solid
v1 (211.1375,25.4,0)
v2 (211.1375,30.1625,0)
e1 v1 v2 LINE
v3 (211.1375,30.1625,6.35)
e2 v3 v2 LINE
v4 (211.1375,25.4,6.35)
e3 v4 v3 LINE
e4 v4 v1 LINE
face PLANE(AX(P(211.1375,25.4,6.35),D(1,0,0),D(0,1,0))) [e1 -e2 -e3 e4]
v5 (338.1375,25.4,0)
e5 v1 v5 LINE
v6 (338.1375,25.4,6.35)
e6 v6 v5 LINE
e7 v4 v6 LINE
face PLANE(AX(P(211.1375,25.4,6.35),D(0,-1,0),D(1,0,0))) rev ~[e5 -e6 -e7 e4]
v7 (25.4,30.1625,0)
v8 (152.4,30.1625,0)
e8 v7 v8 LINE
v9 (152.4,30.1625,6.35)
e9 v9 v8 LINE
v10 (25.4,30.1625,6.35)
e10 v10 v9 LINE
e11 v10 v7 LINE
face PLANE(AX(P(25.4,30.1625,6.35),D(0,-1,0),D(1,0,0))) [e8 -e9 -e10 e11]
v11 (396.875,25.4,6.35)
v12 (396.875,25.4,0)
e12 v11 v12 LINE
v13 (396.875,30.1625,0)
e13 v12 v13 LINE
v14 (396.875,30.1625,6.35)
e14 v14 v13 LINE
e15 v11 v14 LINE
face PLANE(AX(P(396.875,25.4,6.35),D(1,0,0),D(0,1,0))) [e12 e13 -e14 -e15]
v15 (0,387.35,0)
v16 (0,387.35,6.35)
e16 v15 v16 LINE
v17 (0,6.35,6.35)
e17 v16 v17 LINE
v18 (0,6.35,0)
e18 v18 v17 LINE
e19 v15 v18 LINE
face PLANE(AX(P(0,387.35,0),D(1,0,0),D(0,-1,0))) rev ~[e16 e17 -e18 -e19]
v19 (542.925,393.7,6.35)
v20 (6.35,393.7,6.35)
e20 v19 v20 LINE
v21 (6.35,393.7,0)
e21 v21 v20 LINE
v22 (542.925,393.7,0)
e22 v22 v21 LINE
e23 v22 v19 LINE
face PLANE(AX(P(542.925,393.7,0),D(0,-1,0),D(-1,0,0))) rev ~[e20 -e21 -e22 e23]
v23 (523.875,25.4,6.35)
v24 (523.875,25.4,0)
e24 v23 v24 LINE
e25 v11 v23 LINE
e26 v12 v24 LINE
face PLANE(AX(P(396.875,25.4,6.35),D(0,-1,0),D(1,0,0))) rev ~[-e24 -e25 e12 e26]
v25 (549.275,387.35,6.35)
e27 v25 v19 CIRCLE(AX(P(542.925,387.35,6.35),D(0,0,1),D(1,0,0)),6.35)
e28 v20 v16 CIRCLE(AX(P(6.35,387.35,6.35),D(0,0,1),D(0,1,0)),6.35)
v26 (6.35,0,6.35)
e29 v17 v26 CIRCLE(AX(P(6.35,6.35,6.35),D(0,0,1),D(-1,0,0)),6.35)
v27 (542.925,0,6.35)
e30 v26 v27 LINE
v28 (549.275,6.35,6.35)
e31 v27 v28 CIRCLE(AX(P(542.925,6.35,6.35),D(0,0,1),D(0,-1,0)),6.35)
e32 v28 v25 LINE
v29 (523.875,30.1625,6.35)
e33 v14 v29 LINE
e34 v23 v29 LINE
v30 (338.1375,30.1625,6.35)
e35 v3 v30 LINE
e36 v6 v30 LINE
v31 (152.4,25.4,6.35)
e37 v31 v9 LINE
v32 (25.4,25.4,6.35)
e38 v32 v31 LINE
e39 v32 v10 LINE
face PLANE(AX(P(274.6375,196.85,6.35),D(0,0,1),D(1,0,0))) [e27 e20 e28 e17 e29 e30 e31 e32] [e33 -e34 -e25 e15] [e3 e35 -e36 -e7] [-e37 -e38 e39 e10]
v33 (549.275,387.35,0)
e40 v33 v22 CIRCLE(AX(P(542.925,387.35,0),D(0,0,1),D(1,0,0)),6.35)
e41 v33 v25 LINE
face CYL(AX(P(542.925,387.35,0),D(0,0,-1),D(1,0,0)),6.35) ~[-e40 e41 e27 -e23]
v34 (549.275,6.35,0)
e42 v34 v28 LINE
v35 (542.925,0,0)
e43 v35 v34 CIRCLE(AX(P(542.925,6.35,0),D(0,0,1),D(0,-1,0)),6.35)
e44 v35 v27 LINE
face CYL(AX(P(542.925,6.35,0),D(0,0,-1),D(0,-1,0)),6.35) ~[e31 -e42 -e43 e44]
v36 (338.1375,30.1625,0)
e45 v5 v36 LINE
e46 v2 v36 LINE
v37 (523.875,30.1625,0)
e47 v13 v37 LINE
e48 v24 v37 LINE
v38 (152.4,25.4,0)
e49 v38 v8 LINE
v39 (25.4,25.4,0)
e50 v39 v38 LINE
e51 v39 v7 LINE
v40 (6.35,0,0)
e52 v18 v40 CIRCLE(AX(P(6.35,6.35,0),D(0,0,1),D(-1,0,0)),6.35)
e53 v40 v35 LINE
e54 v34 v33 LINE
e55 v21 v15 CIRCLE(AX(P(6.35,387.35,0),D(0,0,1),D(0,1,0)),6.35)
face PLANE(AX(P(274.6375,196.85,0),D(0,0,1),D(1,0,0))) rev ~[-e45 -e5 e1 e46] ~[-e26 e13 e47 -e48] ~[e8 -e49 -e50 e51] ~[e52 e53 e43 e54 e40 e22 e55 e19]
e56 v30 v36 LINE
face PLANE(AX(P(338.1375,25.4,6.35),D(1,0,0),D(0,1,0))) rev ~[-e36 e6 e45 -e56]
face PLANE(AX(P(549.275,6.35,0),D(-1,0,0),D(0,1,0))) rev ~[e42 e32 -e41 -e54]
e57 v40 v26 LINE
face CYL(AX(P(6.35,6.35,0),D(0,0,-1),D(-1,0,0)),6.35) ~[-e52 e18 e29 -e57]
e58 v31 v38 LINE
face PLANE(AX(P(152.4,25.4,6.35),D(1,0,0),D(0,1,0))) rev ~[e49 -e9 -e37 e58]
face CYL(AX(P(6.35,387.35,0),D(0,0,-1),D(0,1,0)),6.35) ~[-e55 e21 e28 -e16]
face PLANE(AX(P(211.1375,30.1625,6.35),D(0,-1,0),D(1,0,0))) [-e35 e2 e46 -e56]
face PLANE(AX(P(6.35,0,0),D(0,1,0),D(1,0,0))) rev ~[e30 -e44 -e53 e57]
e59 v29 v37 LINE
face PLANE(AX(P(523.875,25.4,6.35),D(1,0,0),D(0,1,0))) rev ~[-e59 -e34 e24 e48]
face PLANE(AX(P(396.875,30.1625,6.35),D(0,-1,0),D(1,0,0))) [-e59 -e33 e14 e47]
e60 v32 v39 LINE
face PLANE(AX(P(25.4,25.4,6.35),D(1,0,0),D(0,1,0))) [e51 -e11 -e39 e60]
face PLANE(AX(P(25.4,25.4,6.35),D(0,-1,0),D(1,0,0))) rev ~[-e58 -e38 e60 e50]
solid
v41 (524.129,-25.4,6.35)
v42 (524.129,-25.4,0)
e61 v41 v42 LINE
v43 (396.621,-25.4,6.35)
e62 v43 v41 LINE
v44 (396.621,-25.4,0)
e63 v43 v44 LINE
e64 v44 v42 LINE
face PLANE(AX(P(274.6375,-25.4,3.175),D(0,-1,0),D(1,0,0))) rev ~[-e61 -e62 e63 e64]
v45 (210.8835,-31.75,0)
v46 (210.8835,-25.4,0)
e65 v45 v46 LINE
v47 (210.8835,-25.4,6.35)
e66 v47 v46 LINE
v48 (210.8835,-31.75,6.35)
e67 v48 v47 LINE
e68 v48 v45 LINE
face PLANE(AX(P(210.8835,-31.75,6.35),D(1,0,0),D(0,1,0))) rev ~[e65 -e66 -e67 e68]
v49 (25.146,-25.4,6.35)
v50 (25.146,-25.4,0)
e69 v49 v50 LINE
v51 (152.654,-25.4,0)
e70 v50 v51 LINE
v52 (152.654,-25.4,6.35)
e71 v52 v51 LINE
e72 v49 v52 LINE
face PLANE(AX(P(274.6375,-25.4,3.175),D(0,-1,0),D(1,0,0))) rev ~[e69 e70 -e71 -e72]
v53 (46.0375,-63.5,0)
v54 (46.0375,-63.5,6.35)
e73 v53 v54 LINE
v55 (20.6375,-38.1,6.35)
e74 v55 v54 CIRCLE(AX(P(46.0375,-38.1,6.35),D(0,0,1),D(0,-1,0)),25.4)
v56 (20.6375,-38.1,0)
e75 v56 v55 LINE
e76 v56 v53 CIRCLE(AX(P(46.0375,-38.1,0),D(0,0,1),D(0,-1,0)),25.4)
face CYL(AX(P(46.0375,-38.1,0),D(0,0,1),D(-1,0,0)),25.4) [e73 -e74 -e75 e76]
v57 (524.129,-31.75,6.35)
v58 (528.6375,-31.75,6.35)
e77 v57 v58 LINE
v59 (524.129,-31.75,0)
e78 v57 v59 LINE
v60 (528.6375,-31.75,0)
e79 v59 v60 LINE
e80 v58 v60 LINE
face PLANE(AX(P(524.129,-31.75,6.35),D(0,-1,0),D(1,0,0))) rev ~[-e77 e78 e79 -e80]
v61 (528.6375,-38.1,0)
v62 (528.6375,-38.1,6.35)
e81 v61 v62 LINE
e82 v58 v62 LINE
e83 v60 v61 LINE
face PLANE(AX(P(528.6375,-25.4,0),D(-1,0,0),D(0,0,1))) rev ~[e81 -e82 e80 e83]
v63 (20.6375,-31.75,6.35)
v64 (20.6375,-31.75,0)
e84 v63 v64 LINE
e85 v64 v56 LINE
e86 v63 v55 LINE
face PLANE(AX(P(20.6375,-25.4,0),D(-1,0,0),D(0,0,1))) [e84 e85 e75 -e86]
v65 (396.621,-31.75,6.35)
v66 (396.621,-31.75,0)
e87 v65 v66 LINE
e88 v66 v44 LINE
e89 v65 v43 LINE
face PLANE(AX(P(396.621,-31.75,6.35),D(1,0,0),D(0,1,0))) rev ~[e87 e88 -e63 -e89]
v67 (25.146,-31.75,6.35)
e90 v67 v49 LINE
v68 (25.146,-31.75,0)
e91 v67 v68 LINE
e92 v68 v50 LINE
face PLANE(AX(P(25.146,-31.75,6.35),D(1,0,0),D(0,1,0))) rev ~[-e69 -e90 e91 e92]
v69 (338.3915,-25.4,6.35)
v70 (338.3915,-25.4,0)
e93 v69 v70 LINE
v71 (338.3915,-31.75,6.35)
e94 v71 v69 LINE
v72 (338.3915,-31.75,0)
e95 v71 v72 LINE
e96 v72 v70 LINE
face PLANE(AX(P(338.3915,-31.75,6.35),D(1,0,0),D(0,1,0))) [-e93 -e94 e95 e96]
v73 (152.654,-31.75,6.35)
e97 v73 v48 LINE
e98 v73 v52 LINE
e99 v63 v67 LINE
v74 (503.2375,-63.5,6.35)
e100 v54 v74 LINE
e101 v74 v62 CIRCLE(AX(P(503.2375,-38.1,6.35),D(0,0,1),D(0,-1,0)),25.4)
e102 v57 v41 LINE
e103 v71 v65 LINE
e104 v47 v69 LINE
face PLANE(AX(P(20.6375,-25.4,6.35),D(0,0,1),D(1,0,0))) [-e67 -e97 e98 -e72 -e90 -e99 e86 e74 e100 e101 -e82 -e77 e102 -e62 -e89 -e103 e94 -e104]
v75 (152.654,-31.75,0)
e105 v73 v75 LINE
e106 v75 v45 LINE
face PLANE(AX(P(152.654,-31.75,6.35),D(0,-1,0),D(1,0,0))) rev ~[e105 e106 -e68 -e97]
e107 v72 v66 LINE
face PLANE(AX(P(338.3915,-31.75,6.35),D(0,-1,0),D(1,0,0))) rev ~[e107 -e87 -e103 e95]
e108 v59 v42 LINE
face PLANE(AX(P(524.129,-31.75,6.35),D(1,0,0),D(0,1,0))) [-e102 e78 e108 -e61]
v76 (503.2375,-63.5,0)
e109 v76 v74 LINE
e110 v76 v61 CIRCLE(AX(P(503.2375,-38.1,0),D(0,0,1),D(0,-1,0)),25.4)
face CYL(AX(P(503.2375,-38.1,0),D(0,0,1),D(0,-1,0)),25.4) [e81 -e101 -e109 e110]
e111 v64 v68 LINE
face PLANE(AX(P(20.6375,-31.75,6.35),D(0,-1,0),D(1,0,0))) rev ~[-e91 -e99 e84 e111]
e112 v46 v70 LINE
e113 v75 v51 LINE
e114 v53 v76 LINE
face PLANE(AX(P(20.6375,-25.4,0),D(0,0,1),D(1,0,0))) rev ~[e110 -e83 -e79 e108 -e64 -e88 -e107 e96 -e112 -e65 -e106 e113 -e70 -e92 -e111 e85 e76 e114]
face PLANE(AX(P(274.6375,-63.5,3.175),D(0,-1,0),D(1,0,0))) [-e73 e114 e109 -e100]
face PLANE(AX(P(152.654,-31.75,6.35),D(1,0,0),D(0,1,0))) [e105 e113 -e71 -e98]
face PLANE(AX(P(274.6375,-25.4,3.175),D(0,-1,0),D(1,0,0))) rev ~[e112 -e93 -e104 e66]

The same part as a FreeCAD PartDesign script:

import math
import FreeCAD as App
import Part
import Sketcher

V = App.Vector
Q = App.Units.Quantity


def edges_at(feature, points):
    """Names of the edges that pass closest to the given points."""
    edges = feature.Shape.Edges
    near = lambda p: min(range(len(edges)), key=lambda i: edges[i].distToShape(Part.Vertex(*p))[0])
    return sorted({f"Edge{near(p) + 1}" for p in points})

doc = App.newDocument("Part")
body = doc.addObject("PartDesign::Body", "Body")

# Sketch on XY plane
sketch1 = body.newObject("Sketcher::SketchObject", "Sketch")
sketch1.AttachmentSupport = (doc.getObject("XY_Plane"), [""])
sketch1.MapMode = "FlatFace"
sketch1.addGeometry([
    Part.LineSegment(V(6, 0, 0), V(543, 0, 0)),  # 0
    Part.ArcOfCircle(Part.Circle(V(543, 6, 0), V(0, 0, 1), 6), math.radians(-90), math.radians(0)),  # 1
    Part.LineSegment(V(549, 6, 0), V(549, 387, 0)),  # 2
    Part.ArcOfCircle(Part.Circle(V(543, 387, 0), V(0, 0, 1), 6), math.radians(0), math.radians(90)),  # 3
    Part.LineSegment(V(543, 394, 0), V(6, 394, 0)),  # 4
    Part.ArcOfCircle(Part.Circle(V(6, 387, 0), V(0, 0, 1), 6), math.radians(90), math.radians(180)),  # 5
    Part.LineSegment(V(0, 387, 0), V(0, 6, 0)),  # 6
    Part.ArcOfCircle(Part.Circle(V(6, 6, 0), V(0, 0, 1), 6), math.radians(180), math.radians(270)),  # 7
], False)
sketch1.addConstraint([
    Sketcher.Constraint("Tangent", 0, 2, 1, 1),
    Sketcher.Constraint("Tangent", 1, 2, 2, 1),
    Sketcher.Constraint("Tangent", 2, 2, 3, 1),
    Sketcher.Constraint("Tangent", 3, 2, 4, 1),
    Sketcher.Constraint("Tangent", 4, 2, 5, 1),
    Sketcher.Constraint("Tangent", 5, 2, 6, 1),
    Sketcher.Constraint("Tangent", 6, 2, 7, 1),
    Sketcher.Constraint("Tangent", 7, 2, 0, 1),
    Sketcher.Constraint("Horizontal", 0),
    Sketcher.Constraint("Vertical", 2),
    Sketcher.Constraint("Horizontal", 4),
    Sketcher.Constraint("Vertical", 6),
    Sketcher.Constraint("Equal", 1, 3),
    Sketcher.Constraint("Equal", 3, 5),
    Sketcher.Constraint("Equal", 5, 7),
    Sketcher.Constraint("PointOnObject", 0, 2, -1),
    Sketcher.Constraint("PointOnObject", 5, 2, -2),
    Sketcher.Constraint("DistanceY", 2, 1, 2, 2, Q("15 in")),
    Sketcher.Constraint("Radius", 1, Q("0.25 in")),
    Sketcher.Constraint("DistanceX", 0, 1, 0, 2, Q("21.125 in")),
])
pad1 = body.newObject("PartDesign::Pad", "Pad")
pad1.Profile = sketch1
pad1.Length = Q("0.25 in")

# Sketch on XY plane
sketch2 = body.newObject("Sketcher::SketchObject", "Sketch001")
sketch2.AttachmentSupport = (doc.getObject("XY_Plane"), [""])
sketch2.MapMode = "FlatFace"
sketch2.AttachmentOffset = App.Placement(V(0, 0, 0.25 * 25.4), App.Rotation())
sketch2.addGeometry([
    Part.LineSegment(V(396.9, 30.2, 0), V(396.9, 25.4, 0)),  # 0
    Part.LineSegment(V(396.9, 25.4, 0), V(523.9, 25.4, 0)),  # 1
    Part.LineSegment(V(523.9, 25.4, 0), V(523.9, 30.2, 0)),  # 2
    Part.LineSegment(V(523.9, 30.2, 0), V(396.9, 30.2, 0)),  # 3
    Part.LineSegment(V(211.1, 30.2, 0), V(211.1, 25.4, 0)),  # 4
    Part.LineSegment(V(211.1, 25.4, 0), V(338.1, 25.4, 0)),  # 5
    Part.LineSegment(V(338.1, 25.4, 0), V(338.1, 30.2, 0)),  # 6
    Part.LineSegment(V(338.1, 30.2, 0), V(211.1, 30.2, 0)),  # 7
    Part.LineSegment(V(25.4, 30.2, 0), V(25.4, 25.4, 0)),  # 8
    Part.LineSegment(V(25.4, 25.4, 0), V(152.4, 25.4, 0)),  # 9
    Part.LineSegment(V(152.4, 25.4, 0), V(152.4, 30.2, 0)),  # 10
    Part.LineSegment(V(152.4, 30.2, 0), V(25.4, 30.2, 0)),  # 11
], False)
sketch2.addConstraint([
    Sketcher.Constraint("Coincident", 0, 2, 1, 1),
    Sketcher.Constraint("Coincident", 1, 2, 2, 1),
    Sketcher.Constraint("Coincident", 2, 2, 3, 1),
    Sketcher.Constraint("Coincident", 3, 2, 0, 1),
    Sketcher.Constraint("Coincident", 4, 2, 5, 1),
    Sketcher.Constraint("Coincident", 5, 2, 6, 1),
    Sketcher.Constraint("Coincident", 6, 2, 7, 1),
    Sketcher.Constraint("Coincident", 7, 2, 4, 1),
    Sketcher.Constraint("Coincident", 8, 2, 9, 1),
    Sketcher.Constraint("Coincident", 9, 2, 10, 1),
    Sketcher.Constraint("Coincident", 10, 2, 11, 1),
    Sketcher.Constraint("Coincident", 11, 2, 8, 1),
    Sketcher.Constraint("Vertical", 0),
    Sketcher.Constraint("Horizontal", 1),
    Sketcher.Constraint("Vertical", 2),
    Sketcher.Constraint("Horizontal", 3),
    Sketcher.Constraint("Vertical", 4),
    Sketcher.Constraint("Horizontal", 5),
    Sketcher.Constraint("Vertical", 6),
    Sketcher.Constraint("Horizontal", 7),
    Sketcher.Constraint("Vertical", 8),
    Sketcher.Constraint("Horizontal", 9),
    Sketcher.Constraint("Vertical", 10),
    Sketcher.Constraint("Horizontal", 11),
    Sketcher.Constraint("Horizontal", 1, 2, 4, 2),
    Sketcher.Constraint("Horizontal", 3, 2, 6, 2),
    Sketcher.Constraint("Horizontal", 5, 2, 8, 2),
    Sketcher.Constraint("Horizontal", 7, 2, 10, 2),
    Sketcher.Constraint("Equal", 3, 5),
    Sketcher.Constraint("Equal", 7, 9),
    Sketcher.Constraint("DistanceX", 1, 1, 1, 2, Q("5 in")),
    Sketcher.Constraint("DistanceY", -1, 1, 0, 2, Q("1 in")),
    Sketcher.Constraint("DistanceX", -1, 1, 8, 2, Q("1 in")),
    Sketcher.Constraint("DistanceY", 0, 2, 0, 1, Q("0.1875 in")),
    Sketcher.Constraint("DistanceX", -1, 1, 0, 2, Q("15.625 in")),
    Sketcher.Constraint("DistanceX", -1, 1, 4, 2, Q("8.3125 in")),
])
pocket1 = body.newObject("PartDesign::Pocket", "Pocket")
pocket1.Profile = sketch2
pocket1.Type = "ThroughAll"
body2 = doc.addObject("PartDesign::Body", "Body001")

# Sketch on XZ plane
sketch3 = body2.newObject("Sketcher::SketchObject", "Sketch002")
sketch3.AttachmentSupport = (doc.getObject("XZ_Plane001"), [""])
sketch3.MapMode = "FlatFace"
sketch3.AttachmentOffset = App.Placement(V(0, 0, 1 * 25.4), App.Rotation())
sketch3.addGeometry([
    Part.LineSegment(V(21, 6, 0), V(21, 0, 0)),
    Part.LineSegment(V(21, 0, 0), V(529, 0, 0)),
    Part.LineSegment(V(529, 0, 0), V(529, 6, 0)),
    Part.LineSegment(V(529, 6, 0), V(21, 6, 0)),
], False)
sketch3.addConstraint([
    Sketcher.Constraint("Coincident", 0, 2, 1, 1),
    Sketcher.Constraint("Coincident", 1, 2, 2, 1),
    Sketcher.Constraint("Coincident", 2, 2, 3, 1),
    Sketcher.Constraint("Coincident", 3, 2, 0, 1),
    Sketcher.Constraint("Vertical", 0),
    Sketcher.Constraint("Horizontal", 1),
    Sketcher.Constraint("Vertical", 2),
    Sketcher.Constraint("Horizontal", 3),
    Sketcher.Constraint("PointOnObject", 0, 2, -1),
    Sketcher.Constraint("DistanceX", 1, 1, 1, 2, Q("20 in")),
    Sketcher.Constraint("DistanceY", 0, 2, 0, 1, Q("0.25 in")),
    Sketcher.Constraint("DistanceX", -1, 1, 0, 2, Q("0.8125 in")),
])
pad2 = body2.newObject("PartDesign::Pad", "Pad001")
pad2.Profile = sketch3
pad2.Length = Q("1.5 in")

# Sketch on XY plane
sketch4 = body2.newObject("Sketcher::SketchObject", "Sketch003")
sketch4.AttachmentSupport = (doc.getObject("XY_Plane001"), [""])
sketch4.MapMode = "FlatFace"
sketch4.AttachmentOffset = App.Placement(V(0, 0, 0.25 * 25.4), App.Rotation())
sketch4.addGeometry([
    Part.LineSegment(V(20.6, -25.4, 0), V(20.6, -31.8, 0)),  # 0
    Part.LineSegment(V(20.6, -31.8, 0), V(25.1, -31.8, 0)),  # 1
    Part.LineSegment(V(25.1, -31.8, 0), V(25.1, -25.4, 0)),  # 2
    Part.LineSegment(V(25.1, -25.4, 0), V(20.6, -25.4, 0)),  # 3
    Part.LineSegment(V(152.7, -25.4, 0), V(152.7, -31.8, 0)),  # 4
    Part.LineSegment(V(152.7, -31.8, 0), V(210.9, -31.8, 0)),  # 5
    Part.LineSegment(V(210.9, -31.8, 0), V(210.9, -25.4, 0)),  # 6
    Part.LineSegment(V(210.9, -25.4, 0), V(152.7, -25.4, 0)),  # 7
    Part.LineSegment(V(338.4, -25.4, 0), V(338.4, -31.8, 0)),  # 8
    Part.LineSegment(V(338.4, -31.8, 0), V(396.6, -31.8, 0)),  # 9
    Part.LineSegment(V(396.6, -31.8, 0), V(396.6, -25.4, 0)),  # 10
    Part.LineSegment(V(396.6, -25.4, 0), V(338.4, -25.4, 0)),  # 11
    Part.LineSegment(V(524.1, -25.4, 0), V(524.1, -31.8, 0)),  # 12
    Part.LineSegment(V(524.1, -31.8, 0), V(528.6, -31.8, 0)),  # 13
    Part.LineSegment(V(528.6, -31.8, 0), V(528.6, -25.4, 0)),  # 14
    Part.LineSegment(V(528.6, -25.4, 0), V(524.1, -25.4, 0)),  # 15
], False)
sketch4.addConstraint([
    Sketcher.Constraint("Coincident", 0, 2, 1, 1),
    Sketcher.Constraint("Coincident", 1, 2, 2, 1),
    Sketcher.Constraint("Coincident", 2, 2, 3, 1),
    Sketcher.Constraint("Coincident", 3, 2, 0, 1),
    Sketcher.Constraint("Coincident", 4, 2, 5, 1),
    Sketcher.Constraint("Coincident", 5, 2, 6, 1),
    Sketcher.Constraint("Coincident", 6, 2, 7, 1),
    Sketcher.Constraint("Coincident", 7, 2, 4, 1),
    Sketcher.Constraint("Coincident", 8, 2, 9, 1),
    Sketcher.Constraint("Coincident", 9, 2, 10, 1),
    Sketcher.Constraint("Coincident", 10, 2, 11, 1),
    Sketcher.Constraint("Coincident", 11, 2, 8, 1),
    Sketcher.Constraint("Coincident", 12, 2, 13, 1),
    Sketcher.Constraint("Coincident", 13, 2, 14, 1),
    Sketcher.Constraint("Coincident", 14, 2, 15, 1),
    Sketcher.Constraint("Coincident", 15, 2, 12, 1),
    Sketcher.Constraint("Vertical", 0),
    Sketcher.Constraint("Horizontal", 1),
    Sketcher.Constraint("Vertical", 2),
    Sketcher.Constraint("Horizontal", 3),
    Sketcher.Constraint("Vertical", 4),
    Sketcher.Constraint("Horizontal", 5),
    Sketcher.Constraint("Vertical", 6),
    Sketcher.Constraint("Horizontal", 7),
    Sketcher.Constraint("Vertical", 8),
    Sketcher.Constraint("Horizontal", 9),
    Sketcher.Constraint("Vertical", 10),
    Sketcher.Constraint("Horizontal", 11),
    Sketcher.Constraint("Vertical", 12),
    Sketcher.Constraint("Horizontal", 13),
    Sketcher.Constraint("Vertical", 14),
    Sketcher.Constraint("Horizontal", 15),
    Sketcher.Constraint("Horizontal", 1, 2, 4, 2),
    Sketcher.Constraint("Horizontal", 3, 2, 6, 2),
    Sketcher.Constraint("Horizontal", 5, 2, 8, 2),
    Sketcher.Constraint("Horizontal", 7, 2, 10, 2),
    Sketcher.Constraint("Horizontal", 9, 2, 12, 2),
    Sketcher.Constraint("Horizontal", 11, 2, 14, 2),
    Sketcher.Constraint("Equal", 7, 9),
    Sketcher.Constraint("Equal", 3, 13),
    Sketcher.Constraint("DistanceY", 2, 2, -1, 1, Q("1 in")),
    Sketcher.Constraint("DistanceY", 0, 2, 0, 1, Q("0.25 in")),
    Sketcher.Constraint("DistanceX", -1, 1, 1, 2, Q("0.99 in")),
    Sketcher.Constraint("DistanceX", -1, 1, 4, 2, Q("6.01 in")),
    Sketcher.Constraint("DistanceX", 0, 2, 5, 2, Q("7.49 in")),
    Sketcher.Constraint("DistanceX", 5, 2, 8, 2, Q("5.02 in")),
    Sketcher.Constraint("DistanceX", 9, 2, 12, 2, Q("5.02 in")),
    Sketcher.Constraint("DistanceX", 1, 1, 1, 2, Q("0.1775 in")),
])
pocket2 = body2.newObject("PartDesign::Pocket", "Pocket001")
pocket2.Profile = sketch4
pocket2.Type = "ThroughAll"
doc.recompute()

fillet = body2.newObject("PartDesign::Fillet", "Fillet")
fillet.Base = (pocket2, edges_at(pocket2, [(20.637, -63.5, 3.175), (528.638, -63.5, 3.175)]))
fillet.Radius = Q("1 in")

doc.recompute()
